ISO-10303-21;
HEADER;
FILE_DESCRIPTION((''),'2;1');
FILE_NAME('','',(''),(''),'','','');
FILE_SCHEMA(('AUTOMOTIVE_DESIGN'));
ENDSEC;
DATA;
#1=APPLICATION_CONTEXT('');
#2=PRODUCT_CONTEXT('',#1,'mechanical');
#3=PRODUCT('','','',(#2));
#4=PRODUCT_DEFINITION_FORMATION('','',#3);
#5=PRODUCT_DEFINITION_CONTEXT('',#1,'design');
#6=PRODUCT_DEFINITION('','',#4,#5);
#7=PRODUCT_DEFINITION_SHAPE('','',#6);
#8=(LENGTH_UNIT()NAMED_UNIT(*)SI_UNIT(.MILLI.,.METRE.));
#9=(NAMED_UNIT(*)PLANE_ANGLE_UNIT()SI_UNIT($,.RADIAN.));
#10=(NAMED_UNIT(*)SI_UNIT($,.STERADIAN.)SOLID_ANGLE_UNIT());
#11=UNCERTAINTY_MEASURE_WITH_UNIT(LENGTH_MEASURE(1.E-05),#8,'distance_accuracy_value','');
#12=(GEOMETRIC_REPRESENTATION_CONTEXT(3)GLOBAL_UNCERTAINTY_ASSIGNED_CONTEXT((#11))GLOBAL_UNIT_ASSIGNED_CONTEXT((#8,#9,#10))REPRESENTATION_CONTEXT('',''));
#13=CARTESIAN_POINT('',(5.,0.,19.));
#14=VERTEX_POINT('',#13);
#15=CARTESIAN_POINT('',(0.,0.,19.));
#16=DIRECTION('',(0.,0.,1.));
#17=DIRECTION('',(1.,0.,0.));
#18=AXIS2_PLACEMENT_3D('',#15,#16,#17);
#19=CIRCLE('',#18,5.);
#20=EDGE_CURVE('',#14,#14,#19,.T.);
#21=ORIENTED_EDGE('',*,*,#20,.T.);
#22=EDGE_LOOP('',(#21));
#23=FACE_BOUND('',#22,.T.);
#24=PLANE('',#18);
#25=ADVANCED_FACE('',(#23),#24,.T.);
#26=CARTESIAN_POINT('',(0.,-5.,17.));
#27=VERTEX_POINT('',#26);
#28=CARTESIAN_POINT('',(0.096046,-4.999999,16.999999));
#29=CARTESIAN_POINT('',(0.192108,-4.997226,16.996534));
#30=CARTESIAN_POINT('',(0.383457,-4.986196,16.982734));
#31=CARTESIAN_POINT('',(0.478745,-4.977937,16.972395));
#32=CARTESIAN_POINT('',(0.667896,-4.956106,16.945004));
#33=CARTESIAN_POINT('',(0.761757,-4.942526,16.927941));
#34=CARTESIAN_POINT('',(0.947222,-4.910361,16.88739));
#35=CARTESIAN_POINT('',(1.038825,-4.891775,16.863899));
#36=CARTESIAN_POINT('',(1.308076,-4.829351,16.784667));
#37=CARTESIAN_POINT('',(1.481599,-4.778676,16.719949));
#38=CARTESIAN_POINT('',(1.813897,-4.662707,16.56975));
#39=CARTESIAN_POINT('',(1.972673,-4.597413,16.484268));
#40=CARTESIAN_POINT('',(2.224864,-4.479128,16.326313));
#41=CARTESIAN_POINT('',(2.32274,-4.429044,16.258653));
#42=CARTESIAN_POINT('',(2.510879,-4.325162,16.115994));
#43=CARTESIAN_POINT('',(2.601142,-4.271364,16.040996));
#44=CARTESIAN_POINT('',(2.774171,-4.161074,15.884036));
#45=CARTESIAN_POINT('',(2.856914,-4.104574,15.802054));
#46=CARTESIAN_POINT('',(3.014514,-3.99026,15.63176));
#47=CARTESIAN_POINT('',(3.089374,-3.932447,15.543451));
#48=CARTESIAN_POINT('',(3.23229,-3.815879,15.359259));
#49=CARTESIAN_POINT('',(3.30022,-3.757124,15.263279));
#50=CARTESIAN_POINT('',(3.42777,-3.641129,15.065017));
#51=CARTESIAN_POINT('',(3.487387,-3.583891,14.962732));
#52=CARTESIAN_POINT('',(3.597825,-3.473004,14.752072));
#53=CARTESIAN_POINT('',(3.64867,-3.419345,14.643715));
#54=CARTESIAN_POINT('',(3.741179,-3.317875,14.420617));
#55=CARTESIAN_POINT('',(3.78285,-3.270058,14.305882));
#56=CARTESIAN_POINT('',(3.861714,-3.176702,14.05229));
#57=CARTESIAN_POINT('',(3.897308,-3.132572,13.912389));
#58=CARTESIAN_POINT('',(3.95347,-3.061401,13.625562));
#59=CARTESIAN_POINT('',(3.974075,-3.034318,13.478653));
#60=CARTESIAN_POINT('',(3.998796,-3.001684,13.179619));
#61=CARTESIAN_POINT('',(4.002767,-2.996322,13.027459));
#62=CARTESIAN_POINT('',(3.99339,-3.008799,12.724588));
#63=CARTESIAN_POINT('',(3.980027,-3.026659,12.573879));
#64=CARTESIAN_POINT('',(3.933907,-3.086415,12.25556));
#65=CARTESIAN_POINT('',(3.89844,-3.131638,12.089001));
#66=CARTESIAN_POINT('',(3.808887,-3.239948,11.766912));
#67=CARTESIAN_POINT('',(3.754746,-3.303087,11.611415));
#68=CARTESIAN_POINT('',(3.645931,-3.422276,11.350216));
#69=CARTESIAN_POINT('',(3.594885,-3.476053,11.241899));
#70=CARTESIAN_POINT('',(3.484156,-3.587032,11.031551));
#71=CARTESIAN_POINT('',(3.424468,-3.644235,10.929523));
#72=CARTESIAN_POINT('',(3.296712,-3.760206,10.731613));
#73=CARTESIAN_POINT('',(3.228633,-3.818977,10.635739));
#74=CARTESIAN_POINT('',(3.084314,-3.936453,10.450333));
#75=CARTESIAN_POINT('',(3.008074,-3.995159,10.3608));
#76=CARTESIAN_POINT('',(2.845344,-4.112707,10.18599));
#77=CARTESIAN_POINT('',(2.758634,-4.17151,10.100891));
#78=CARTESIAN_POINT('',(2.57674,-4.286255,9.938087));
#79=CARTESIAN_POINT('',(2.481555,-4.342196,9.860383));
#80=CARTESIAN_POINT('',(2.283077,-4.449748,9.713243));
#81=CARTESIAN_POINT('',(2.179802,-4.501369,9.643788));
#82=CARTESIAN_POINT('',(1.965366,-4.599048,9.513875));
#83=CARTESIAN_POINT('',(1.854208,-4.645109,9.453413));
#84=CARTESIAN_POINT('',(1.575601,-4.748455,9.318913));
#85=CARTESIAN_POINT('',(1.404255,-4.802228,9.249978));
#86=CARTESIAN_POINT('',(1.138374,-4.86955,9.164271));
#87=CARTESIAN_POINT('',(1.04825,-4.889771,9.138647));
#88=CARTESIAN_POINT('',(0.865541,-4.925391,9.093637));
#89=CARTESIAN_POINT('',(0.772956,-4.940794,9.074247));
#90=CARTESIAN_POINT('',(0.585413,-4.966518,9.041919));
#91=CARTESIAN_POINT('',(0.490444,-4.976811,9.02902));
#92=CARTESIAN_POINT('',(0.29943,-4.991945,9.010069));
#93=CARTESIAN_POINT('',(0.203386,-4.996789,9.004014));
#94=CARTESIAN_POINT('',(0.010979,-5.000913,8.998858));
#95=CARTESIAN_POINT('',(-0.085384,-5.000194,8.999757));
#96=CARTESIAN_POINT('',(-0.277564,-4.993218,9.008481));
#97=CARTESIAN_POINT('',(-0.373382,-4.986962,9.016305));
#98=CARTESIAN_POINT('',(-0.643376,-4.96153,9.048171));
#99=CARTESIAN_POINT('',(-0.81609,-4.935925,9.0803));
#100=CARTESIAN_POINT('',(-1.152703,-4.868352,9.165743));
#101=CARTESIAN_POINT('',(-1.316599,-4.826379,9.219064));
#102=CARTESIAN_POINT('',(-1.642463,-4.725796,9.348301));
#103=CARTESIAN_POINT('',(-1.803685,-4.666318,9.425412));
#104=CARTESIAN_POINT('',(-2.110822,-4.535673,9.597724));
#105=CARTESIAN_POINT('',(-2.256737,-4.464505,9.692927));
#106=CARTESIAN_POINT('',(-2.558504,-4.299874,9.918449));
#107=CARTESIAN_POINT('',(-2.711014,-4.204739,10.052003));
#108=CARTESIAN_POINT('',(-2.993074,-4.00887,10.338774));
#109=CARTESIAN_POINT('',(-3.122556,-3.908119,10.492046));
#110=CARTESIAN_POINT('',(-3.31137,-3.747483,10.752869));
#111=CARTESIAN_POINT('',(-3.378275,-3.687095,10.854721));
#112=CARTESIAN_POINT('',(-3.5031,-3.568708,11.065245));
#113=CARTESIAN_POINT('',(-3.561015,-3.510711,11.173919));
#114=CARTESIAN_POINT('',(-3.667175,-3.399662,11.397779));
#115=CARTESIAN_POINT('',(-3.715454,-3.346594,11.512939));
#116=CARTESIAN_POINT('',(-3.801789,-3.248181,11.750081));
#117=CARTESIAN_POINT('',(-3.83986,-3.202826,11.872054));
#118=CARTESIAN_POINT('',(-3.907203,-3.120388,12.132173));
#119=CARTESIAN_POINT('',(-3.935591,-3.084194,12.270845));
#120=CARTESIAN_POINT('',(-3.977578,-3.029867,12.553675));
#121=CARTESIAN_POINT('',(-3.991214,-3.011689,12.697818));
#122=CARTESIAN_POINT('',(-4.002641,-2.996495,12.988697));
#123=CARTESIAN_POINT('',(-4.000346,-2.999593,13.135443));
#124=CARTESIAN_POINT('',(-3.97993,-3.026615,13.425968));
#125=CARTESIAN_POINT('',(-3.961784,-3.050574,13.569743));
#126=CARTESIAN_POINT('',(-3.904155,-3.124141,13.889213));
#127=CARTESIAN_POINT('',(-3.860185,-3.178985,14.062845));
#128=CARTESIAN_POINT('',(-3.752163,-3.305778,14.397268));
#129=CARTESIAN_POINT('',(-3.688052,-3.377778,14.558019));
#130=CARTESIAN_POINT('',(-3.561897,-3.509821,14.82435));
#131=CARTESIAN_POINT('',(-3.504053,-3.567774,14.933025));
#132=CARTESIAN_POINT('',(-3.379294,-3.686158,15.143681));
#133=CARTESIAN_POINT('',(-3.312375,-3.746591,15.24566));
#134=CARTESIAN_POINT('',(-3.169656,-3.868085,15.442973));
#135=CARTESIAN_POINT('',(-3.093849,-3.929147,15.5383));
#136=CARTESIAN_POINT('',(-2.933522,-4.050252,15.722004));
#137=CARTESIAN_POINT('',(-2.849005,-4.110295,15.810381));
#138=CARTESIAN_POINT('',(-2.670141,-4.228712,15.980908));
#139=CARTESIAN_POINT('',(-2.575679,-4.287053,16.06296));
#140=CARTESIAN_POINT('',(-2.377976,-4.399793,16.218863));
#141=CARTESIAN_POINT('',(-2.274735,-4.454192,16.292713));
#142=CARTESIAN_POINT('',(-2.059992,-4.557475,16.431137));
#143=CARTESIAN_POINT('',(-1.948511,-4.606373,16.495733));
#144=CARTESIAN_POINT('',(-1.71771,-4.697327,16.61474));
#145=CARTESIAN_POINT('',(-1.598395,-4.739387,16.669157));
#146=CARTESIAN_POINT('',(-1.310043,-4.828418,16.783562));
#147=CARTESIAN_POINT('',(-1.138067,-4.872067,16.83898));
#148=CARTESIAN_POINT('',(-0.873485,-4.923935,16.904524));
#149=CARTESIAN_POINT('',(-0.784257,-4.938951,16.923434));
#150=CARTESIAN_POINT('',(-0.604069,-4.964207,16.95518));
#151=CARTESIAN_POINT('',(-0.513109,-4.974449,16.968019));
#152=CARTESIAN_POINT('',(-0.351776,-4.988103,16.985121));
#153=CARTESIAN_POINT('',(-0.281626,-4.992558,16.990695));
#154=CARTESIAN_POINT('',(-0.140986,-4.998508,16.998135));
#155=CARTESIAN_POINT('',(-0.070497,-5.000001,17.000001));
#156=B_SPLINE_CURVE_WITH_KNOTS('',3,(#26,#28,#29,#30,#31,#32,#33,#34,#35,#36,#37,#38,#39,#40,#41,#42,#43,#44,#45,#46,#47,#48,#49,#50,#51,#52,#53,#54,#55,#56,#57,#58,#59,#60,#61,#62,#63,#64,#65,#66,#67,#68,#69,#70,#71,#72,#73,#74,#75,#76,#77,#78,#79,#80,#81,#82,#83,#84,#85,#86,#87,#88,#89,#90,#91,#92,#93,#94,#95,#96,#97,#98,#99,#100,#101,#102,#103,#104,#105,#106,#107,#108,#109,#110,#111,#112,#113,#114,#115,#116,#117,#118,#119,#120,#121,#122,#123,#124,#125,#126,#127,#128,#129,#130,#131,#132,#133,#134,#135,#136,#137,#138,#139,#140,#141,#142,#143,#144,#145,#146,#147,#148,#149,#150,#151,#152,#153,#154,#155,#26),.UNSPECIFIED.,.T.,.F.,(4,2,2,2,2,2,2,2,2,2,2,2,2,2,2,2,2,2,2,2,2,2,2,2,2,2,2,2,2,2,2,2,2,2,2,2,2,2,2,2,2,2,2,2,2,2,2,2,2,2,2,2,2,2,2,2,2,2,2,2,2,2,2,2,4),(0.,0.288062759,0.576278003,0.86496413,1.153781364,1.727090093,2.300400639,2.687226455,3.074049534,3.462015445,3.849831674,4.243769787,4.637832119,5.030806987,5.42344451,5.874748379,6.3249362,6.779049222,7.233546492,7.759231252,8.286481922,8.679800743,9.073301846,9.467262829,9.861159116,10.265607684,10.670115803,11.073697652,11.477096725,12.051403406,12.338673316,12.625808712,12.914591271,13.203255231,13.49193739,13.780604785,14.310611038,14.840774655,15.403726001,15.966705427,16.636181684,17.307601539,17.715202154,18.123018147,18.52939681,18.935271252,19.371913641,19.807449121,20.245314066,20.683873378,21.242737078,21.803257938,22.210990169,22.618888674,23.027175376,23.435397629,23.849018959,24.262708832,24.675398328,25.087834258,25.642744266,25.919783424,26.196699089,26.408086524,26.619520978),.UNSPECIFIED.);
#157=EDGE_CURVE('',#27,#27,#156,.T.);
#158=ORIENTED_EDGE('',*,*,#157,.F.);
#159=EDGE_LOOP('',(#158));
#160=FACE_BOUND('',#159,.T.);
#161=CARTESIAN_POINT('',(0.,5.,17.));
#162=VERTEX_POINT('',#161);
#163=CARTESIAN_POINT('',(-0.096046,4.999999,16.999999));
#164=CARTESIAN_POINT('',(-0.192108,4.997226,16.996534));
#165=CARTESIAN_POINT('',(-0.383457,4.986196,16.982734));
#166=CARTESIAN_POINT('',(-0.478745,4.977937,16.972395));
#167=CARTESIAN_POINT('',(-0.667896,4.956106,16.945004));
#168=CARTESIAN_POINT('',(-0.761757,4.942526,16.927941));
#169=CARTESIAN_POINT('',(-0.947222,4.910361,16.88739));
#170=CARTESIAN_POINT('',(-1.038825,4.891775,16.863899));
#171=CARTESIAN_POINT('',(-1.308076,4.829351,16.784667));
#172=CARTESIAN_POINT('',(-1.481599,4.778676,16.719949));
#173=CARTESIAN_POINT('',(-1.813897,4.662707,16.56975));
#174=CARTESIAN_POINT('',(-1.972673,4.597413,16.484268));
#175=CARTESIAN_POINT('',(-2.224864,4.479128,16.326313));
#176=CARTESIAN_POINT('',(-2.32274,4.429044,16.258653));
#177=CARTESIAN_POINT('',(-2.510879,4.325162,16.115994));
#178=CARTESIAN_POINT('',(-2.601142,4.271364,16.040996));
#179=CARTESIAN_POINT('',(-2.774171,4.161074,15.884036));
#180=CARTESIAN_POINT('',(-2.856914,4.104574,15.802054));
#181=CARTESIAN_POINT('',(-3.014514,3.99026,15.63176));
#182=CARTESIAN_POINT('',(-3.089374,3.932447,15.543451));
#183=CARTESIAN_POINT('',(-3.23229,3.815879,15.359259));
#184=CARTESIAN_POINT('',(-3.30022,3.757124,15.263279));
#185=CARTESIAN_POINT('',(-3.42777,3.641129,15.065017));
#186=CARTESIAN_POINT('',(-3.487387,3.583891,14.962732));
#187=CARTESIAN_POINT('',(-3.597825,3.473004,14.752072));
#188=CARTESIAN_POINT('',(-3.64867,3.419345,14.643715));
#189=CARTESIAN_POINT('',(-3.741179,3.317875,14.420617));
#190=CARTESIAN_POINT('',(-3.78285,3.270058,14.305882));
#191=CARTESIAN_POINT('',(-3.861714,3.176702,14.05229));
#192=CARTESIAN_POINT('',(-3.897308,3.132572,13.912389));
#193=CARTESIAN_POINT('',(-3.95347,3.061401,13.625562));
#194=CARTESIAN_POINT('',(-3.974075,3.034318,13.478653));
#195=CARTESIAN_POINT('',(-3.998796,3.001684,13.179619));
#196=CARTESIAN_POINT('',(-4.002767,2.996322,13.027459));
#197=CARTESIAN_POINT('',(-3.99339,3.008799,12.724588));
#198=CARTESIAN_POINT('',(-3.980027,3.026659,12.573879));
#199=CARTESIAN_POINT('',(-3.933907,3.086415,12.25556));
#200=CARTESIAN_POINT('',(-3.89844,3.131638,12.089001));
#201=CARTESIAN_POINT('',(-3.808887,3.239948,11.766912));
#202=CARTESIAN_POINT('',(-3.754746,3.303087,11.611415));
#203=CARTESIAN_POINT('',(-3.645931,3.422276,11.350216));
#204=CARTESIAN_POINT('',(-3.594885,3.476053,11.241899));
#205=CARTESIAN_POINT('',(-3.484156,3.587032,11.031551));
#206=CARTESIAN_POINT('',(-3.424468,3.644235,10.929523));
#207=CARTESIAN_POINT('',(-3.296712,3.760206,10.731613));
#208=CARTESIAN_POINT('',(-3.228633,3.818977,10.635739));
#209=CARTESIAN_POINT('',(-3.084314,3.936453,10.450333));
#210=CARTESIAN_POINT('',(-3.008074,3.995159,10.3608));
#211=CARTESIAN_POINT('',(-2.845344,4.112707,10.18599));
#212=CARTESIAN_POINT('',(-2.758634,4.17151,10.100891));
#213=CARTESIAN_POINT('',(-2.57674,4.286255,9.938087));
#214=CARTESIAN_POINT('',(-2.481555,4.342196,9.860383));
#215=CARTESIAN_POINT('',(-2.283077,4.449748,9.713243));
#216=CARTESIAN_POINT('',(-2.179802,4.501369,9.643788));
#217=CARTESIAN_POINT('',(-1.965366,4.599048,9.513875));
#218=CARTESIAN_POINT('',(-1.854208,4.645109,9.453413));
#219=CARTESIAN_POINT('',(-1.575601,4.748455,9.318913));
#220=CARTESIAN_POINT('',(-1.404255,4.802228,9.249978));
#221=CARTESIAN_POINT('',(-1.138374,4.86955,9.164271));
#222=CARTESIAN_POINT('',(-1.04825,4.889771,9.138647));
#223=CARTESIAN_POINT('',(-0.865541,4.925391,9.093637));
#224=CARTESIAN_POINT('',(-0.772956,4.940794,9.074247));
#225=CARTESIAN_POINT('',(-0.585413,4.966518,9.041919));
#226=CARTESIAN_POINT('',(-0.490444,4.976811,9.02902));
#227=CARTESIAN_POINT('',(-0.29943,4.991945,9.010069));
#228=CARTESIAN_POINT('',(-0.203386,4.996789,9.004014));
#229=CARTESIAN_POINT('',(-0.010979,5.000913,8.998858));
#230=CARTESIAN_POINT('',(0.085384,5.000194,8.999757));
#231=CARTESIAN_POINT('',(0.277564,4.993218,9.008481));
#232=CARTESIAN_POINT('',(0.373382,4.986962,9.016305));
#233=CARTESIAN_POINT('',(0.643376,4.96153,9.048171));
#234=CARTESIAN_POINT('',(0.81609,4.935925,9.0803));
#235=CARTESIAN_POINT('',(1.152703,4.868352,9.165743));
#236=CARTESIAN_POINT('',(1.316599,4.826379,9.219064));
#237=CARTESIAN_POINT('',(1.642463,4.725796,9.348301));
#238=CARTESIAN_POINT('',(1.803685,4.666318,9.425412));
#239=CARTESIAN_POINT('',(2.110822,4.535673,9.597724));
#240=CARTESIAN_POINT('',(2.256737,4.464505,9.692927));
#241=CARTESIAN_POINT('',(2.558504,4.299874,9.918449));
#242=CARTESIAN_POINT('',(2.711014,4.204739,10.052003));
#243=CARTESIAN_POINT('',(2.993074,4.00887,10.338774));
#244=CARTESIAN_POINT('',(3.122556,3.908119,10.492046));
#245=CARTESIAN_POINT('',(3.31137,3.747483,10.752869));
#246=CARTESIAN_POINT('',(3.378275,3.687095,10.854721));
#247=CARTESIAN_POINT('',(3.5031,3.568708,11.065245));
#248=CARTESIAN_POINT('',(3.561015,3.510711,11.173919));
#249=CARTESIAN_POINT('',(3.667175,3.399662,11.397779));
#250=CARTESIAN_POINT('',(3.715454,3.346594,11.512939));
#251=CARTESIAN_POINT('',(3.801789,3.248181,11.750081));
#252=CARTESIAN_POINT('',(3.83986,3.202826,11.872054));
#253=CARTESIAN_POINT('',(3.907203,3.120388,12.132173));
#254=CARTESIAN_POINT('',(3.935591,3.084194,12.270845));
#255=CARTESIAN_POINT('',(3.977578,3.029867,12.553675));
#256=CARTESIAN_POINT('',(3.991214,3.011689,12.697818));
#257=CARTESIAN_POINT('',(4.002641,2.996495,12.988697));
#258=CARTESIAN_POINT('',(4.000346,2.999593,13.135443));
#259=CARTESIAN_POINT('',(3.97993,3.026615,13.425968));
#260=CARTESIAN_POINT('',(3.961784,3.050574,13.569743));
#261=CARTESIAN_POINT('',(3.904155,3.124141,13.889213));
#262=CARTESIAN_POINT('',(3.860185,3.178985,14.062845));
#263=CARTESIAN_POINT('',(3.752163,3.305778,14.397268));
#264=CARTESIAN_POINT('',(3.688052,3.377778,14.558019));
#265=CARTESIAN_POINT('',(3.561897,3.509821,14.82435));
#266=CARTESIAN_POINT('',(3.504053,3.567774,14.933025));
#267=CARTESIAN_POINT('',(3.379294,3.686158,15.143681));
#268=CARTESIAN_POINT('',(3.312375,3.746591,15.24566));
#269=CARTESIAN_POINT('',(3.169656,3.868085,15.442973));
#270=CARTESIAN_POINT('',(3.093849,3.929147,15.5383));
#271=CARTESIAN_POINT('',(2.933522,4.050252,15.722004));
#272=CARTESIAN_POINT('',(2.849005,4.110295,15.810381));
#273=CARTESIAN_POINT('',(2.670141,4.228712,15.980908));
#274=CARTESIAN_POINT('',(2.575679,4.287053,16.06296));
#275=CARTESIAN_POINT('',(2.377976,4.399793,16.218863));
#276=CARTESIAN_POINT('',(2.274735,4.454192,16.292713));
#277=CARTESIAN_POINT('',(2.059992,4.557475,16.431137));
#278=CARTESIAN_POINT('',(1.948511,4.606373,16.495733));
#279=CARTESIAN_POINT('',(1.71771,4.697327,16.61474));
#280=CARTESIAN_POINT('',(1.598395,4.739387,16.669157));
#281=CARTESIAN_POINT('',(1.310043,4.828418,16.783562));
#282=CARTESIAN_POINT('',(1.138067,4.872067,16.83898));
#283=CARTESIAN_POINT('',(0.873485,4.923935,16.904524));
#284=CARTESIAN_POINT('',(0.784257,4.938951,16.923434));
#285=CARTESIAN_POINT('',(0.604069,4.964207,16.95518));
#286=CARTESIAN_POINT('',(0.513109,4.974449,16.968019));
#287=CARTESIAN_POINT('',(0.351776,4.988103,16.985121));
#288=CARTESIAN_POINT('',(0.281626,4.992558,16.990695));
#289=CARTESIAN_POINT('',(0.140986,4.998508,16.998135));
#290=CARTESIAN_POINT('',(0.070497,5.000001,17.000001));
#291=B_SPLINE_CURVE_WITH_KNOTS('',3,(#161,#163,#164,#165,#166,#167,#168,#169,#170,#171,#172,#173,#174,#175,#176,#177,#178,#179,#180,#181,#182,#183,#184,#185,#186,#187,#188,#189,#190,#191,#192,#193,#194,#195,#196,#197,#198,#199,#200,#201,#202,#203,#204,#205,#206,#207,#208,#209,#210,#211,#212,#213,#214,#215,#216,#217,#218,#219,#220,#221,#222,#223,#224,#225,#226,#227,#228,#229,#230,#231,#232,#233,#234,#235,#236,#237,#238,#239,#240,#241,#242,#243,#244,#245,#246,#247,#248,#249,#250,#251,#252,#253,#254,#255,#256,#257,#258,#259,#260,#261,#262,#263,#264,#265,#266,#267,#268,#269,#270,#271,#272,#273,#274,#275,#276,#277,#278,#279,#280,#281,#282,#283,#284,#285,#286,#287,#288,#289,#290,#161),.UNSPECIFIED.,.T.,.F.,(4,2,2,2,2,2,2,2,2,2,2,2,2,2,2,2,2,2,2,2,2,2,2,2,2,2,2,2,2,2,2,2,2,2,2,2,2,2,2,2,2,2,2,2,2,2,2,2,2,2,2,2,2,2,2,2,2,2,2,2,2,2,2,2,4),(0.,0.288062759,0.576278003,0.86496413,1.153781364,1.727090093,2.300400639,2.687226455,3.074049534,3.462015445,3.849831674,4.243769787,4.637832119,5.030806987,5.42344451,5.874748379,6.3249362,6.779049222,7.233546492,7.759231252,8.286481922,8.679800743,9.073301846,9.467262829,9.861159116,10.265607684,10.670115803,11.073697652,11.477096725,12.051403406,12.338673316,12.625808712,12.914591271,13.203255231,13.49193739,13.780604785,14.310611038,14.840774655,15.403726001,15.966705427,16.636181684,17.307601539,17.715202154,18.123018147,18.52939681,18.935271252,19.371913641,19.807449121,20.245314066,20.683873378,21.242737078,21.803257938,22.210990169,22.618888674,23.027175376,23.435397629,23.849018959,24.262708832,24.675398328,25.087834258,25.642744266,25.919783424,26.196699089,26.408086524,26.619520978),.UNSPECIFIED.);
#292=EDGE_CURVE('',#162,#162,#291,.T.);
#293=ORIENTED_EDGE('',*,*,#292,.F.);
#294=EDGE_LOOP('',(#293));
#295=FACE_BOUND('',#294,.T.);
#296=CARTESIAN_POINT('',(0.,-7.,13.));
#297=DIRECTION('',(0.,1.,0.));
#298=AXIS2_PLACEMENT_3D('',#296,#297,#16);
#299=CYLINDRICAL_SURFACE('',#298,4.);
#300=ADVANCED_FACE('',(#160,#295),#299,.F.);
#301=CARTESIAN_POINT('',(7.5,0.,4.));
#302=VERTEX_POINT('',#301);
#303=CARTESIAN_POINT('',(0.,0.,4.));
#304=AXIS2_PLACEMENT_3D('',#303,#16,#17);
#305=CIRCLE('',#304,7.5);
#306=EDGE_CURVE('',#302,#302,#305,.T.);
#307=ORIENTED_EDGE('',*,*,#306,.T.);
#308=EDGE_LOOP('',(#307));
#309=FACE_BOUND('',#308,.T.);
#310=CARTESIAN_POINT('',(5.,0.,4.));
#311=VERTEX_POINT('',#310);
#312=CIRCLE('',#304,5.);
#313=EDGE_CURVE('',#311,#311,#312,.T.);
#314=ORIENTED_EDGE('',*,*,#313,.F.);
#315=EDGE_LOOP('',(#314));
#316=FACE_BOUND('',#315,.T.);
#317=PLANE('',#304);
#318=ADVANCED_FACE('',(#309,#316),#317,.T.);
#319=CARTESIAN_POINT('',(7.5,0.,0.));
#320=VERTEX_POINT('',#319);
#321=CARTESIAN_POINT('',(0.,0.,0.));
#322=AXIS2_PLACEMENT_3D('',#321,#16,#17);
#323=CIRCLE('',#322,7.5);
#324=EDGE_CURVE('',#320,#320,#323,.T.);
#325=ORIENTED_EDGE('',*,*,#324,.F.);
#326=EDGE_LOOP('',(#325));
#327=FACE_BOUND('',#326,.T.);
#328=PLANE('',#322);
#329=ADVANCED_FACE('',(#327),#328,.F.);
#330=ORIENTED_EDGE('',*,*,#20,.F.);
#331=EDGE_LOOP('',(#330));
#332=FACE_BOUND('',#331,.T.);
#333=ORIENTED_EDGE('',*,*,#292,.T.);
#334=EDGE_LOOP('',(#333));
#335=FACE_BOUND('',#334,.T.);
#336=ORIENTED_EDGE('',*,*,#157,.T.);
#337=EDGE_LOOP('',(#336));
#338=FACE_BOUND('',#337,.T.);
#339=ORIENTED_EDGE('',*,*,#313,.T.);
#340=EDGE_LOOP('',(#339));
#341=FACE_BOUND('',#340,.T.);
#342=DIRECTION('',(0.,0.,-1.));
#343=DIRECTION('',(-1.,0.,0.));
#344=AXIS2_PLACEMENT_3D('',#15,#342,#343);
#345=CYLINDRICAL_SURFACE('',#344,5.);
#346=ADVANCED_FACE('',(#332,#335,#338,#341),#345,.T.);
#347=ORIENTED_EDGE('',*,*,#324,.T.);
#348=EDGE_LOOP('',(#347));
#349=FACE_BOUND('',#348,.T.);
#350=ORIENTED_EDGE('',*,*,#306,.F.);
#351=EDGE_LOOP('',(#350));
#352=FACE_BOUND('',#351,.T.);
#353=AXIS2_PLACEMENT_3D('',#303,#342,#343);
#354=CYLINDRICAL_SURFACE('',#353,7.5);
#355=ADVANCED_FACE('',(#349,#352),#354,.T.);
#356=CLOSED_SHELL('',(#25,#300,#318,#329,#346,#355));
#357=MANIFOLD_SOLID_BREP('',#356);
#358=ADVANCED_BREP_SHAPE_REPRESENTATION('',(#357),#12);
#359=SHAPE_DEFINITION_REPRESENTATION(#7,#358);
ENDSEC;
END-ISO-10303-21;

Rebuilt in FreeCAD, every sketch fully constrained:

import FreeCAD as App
import Part
import Sketcher

V = App.Vector
Q = App.Units.Quantity

doc = App.newDocument("Part")
body = doc.addObject("PartDesign::Body", "Body")

# Sketch on XY plane
sketch1 = body.newObject("Sketcher::SketchObject", "Sketch")
sketch1.AttachmentSupport = (doc.getObject("XY_Plane"), [""])
sketch1.MapMode = "FlatFace"
sketch1.addGeometry(Part.Circle(V(0, 0, 0), V(0, 0, 1), 8), False)
sketch1.addConstraint([
    Sketcher.Constraint("Coincident", 0, 3, -1, 1),
    Sketcher.Constraint("Diameter", 0, Q("15 mm")),
])
pad1 = body.newObject("PartDesign::Pad", "Pad")
pad1.Profile = sketch1
pad1.Length = 4

# Sketch on XY plane
sketch2 = body.newObject("Sketcher::SketchObject", "Sketch001")
sketch2.AttachmentSupport = (doc.getObject("XY_Plane"), [""])
sketch2.MapMode = "FlatFace"
sketch2.AttachmentOffset = App.Placement(V(0, 0, 4), App.Rotation())
sketch2.addGeometry(Part.Circle(V(0, 0, 0), V(0, 0, 1), 5), False)
sketch2.addConstraint([
    Sketcher.Constraint("Coincident", 0, 3, -1, 1),
    Sketcher.Constraint("Diameter", 0, Q("10 mm")),
])
pad2 = body.newObject("PartDesign::Pad", "Pad001")
pad2.Profile = sketch2
pad2.Length = 15

# Sketch on XZ plane
sketch3 = body.newObject("Sketcher::SketchObject", "Sketch002")
sketch3.AttachmentSupport = (doc.getObject("XZ_Plane"), [""])
sketch3.MapMode = "FlatFace"
sketch3.addGeometry(Part.Circle(V(0, 13, 0), V(0, 0, 1), 4), False)
sketch3.addConstraint([
    Sketcher.Constraint("PointOnObject", 0, 3, -2),
    Sketcher.Constraint("Diameter", 0, Q("8 mm")),
    Sketcher.Constraint("DistanceY", -1, 1, 0, 3, Q("13 mm")),
])
pocket1 = body.newObject("PartDesign::Pocket", "Pocket")
pocket1.Profile = sketch3
pocket1.Length = 14
pocket1.Midplane = True

doc.recompute()
